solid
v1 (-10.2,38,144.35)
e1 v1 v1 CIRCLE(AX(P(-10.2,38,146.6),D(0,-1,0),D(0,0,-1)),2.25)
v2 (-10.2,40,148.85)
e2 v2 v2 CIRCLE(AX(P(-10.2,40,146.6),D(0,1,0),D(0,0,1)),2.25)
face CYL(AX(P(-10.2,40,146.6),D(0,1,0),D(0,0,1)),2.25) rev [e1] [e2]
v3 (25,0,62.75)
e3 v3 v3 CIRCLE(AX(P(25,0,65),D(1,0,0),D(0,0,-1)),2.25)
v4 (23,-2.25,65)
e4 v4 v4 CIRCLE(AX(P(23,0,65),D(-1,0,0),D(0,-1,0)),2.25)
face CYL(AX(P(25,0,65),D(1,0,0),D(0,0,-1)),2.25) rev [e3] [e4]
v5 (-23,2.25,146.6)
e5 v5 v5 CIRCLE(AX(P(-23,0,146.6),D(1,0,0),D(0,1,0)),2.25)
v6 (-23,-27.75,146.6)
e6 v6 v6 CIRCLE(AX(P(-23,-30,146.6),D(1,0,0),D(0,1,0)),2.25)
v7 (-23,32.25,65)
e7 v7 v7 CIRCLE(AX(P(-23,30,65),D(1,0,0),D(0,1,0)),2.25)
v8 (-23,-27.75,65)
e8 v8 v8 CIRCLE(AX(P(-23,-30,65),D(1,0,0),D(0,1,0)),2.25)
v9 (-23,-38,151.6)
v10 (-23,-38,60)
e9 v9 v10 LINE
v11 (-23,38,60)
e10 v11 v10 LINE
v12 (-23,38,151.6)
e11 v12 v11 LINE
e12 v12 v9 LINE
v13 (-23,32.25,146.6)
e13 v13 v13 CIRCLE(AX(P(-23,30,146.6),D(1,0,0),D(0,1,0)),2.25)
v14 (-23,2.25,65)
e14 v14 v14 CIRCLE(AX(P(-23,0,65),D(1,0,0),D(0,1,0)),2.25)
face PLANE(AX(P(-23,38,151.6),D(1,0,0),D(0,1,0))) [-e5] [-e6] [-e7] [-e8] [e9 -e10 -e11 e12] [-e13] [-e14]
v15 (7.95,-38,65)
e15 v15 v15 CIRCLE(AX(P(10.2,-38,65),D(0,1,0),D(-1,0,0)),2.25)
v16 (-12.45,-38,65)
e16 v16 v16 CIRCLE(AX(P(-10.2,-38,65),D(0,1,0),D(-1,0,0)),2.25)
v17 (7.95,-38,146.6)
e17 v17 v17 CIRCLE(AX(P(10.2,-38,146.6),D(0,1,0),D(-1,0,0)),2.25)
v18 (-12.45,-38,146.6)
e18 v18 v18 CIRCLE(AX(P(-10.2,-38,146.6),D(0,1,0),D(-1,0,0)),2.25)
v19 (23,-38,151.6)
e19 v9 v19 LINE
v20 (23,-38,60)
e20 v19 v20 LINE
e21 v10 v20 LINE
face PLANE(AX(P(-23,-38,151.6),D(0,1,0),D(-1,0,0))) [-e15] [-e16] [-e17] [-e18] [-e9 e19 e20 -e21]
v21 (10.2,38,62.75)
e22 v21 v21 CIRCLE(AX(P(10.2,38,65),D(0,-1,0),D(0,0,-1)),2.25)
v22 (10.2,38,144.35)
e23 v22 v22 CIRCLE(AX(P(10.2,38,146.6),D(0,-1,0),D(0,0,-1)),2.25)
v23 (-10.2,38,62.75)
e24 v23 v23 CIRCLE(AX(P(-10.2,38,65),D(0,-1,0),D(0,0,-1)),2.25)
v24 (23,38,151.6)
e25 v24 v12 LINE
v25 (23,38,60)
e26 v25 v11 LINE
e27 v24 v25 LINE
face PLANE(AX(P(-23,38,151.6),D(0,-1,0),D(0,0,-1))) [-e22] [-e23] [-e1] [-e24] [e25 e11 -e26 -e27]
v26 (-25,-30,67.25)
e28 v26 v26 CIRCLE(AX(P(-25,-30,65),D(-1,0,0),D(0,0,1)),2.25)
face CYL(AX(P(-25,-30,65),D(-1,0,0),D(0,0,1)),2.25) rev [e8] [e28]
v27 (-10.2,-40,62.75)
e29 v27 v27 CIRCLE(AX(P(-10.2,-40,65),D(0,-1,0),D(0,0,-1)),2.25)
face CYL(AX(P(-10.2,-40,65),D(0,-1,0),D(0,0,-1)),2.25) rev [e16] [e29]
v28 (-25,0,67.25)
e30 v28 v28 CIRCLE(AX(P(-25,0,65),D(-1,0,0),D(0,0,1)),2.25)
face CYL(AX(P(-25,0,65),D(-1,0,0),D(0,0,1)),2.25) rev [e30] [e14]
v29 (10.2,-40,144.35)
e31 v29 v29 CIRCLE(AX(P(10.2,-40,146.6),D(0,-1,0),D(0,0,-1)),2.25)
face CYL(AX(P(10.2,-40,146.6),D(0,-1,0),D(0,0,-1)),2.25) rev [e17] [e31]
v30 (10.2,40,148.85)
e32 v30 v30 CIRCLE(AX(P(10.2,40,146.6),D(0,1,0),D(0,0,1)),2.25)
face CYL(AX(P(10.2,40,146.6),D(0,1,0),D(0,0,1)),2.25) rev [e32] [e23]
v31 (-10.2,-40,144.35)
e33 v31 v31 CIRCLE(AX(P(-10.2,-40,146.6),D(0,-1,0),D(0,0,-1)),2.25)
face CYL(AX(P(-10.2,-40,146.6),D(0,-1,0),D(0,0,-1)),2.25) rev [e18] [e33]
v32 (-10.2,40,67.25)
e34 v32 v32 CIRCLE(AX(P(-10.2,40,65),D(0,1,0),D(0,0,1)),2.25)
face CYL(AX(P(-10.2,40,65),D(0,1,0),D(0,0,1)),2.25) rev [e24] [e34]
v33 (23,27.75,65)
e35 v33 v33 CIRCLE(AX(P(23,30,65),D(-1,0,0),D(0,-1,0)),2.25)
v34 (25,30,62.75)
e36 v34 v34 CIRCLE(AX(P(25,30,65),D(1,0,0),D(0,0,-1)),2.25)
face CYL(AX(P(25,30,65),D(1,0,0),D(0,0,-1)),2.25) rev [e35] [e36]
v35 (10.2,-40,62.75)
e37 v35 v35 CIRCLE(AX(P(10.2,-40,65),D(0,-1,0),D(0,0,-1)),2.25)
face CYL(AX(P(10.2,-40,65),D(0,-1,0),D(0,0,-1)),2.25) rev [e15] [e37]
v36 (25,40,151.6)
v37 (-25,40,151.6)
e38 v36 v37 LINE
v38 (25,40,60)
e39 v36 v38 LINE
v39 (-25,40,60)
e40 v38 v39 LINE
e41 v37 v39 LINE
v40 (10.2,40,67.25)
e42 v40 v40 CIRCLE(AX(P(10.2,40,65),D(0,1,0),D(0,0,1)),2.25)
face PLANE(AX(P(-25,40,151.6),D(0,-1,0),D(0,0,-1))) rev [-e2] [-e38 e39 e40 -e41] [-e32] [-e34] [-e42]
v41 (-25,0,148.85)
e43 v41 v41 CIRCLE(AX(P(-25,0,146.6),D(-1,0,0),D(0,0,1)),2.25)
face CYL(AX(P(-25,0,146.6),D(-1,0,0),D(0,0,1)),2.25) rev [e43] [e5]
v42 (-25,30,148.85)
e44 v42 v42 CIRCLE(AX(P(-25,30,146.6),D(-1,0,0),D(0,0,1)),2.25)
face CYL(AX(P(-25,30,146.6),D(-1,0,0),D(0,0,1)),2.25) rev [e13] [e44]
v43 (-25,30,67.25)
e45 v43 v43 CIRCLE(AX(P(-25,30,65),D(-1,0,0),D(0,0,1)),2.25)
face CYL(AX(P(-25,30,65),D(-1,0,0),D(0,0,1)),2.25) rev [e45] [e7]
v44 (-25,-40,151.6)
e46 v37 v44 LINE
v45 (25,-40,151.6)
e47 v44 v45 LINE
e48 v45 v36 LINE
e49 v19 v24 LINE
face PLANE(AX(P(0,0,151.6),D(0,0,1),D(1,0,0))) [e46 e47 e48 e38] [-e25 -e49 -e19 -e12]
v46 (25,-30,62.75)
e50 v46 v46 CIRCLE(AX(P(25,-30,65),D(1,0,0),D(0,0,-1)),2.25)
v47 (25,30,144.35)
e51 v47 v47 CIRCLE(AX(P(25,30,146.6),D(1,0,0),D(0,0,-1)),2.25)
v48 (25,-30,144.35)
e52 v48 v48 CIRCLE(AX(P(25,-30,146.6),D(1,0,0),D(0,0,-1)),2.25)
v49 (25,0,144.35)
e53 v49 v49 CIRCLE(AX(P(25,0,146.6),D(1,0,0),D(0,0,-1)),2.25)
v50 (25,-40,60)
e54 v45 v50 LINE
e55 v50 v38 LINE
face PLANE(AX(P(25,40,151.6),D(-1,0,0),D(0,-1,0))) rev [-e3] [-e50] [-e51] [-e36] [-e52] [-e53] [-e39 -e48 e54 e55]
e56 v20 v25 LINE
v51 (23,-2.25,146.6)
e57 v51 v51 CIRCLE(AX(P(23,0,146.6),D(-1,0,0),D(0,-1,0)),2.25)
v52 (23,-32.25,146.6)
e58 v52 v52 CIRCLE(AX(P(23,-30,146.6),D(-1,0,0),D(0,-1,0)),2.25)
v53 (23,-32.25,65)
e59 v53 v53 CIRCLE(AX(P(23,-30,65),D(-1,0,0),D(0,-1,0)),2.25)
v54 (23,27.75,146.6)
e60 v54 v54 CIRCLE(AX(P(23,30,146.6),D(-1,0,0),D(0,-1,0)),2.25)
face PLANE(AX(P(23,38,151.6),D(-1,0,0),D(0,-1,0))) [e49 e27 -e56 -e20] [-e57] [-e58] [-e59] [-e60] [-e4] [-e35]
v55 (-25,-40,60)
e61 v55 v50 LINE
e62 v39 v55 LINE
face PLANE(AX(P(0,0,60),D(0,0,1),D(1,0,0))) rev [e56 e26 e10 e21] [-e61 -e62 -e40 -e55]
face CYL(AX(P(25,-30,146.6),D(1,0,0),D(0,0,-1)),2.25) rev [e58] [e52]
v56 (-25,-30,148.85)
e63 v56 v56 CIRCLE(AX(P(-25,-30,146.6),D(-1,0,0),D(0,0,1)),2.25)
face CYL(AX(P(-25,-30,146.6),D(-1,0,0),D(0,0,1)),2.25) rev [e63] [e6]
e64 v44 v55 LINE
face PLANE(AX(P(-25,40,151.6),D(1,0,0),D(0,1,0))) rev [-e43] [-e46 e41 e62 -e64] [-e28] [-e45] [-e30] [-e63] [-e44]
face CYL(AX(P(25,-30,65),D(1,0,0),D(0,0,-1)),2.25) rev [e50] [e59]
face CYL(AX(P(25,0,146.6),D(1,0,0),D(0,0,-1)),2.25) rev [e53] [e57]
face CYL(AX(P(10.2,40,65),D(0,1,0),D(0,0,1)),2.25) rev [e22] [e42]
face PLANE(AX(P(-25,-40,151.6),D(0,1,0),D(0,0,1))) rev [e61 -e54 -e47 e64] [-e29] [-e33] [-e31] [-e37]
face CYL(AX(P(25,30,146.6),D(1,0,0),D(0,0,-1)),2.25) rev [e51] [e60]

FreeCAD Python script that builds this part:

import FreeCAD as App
import Part
import Sketcher

V = App.Vector


def add_polygon(sketch, points):
    """Adds a closed chain of lines whose ends are joined by coincident constraints."""
    first, n = sketch.GeometryCount, len(points)
    for a, b in zip(points, points[1:] + points[:1]):
        sketch.addGeometry(Part.LineSegment(App.Vector(*a, 0), App.Vector(*b, 0)), False)
    for i in range(n):
        sketch.addConstraint(Sketcher.Constraint("Coincident", first + i, 2, first + (i + 1) % n, 1))

doc = App.newDocument("Part")
body = doc.addObject("PartDesign::Body", "Body")

sketch1 = body.newObject("Sketcher::SketchObject", "Sketch")
sketch1.AttachmentSupport = (doc.getObject("XY_Plane"), [""])
sketch1.MapMode = "FlatFace"
sketch1.AttachmentOffset = App.Placement(V(0, 0, 60), App.Rotation())
add_polygon(sketch1, [(-25, 40), (-25, -40), (25, -40), (25, 40)])
add_polygon(sketch1, [(23, -38), (-23, -38), (-23, 38), (23, 38)])
sketch1.addConstraint(Sketcher.Constraint("Vertical", 0))
sketch1.addConstraint(Sketcher.Constraint("Horizontal", 1))
sketch1.addConstraint(Sketcher.Constraint("Vertical", 2))
sketch1.addConstraint(Sketcher.Constraint("Horizontal", 3))
sketch1.addConstraint(Sketcher.Constraint("Horizontal", 4))
sketch1.addConstraint(Sketcher.Constraint("Vertical", 5))
sketch1.addConstraint(Sketcher.Constraint("Horizontal", 6))
sketch1.addConstraint(Sketcher.Constraint("Vertical", 7))
sketch1.addConstraint(Sketcher.Constraint("Symmetric", 0, 2, 2, 2, -1, 1))
sketch1.addConstraint(Sketcher.Constraint("Symmetric", 4, 2, 6, 2, -1, 1))
sketch1.addConstraint(Sketcher.Constraint("DistanceX", 1, 1, 1, 2, 50.0))
sketch1.addConstraint(Sketcher.Constraint("DistanceX", 4, 2, 4, 1, 46.0))
sketch1.addConstraint(Sketcher.Constraint("DistanceY", 0, 2, 0, 1, 80.0))
sketch1.addConstraint(Sketcher.Constraint("DistanceY", 5, 1, 5, 2, 76.0))
pad1 = body.newObject("PartDesign::Pad", "Pad")
pad1.Profile = sketch1
pad1.Length = 91.6

sketch2 = body.newObject("Sketcher::SketchObject", "Sketch001")
sketch2.AttachmentSupport = (doc.getObject("YZ_Plane"), [""])
sketch2.MapMode = "FlatFace"
sketch2.AttachmentOffset = App.Placement(V(0, 0, 25), App.Rotation())
sketch2.addGeometry(Part.Circle(V(30, 65, 0), V(0, 0, 1), 2.25), False)
sketch2.addGeometry(Part.Circle(V(0, 65, 0), V(0, 0, 1), 2.25), False)
sketch2.addGeometry(Part.Circle(V(-30, 65, 0), V(0, 0, 1), 2.25), False)
sketch2.addGeometry(Part.Circle(V(-30, 146.6, 0), V(0, 0, 1), 2.25), False)
sketch2.addGeometry(Part.Circle(V(0, 146.6, 0), V(0, 0, 1), 2.25), False)
sketch2.addGeometry(Part.Circle(V(30, 146.6, 0), V(0, 0, 1), 2.25), False)
sketch2.addConstraint(Sketcher.Constraint("Equal", 0, 1))
sketch2.addConstraint(Sketcher.Constraint("Equal", 1, 2))
sketch2.addConstraint(Sketcher.Constraint("Equal", 2, 3))
sketch2.addConstraint(Sketcher.Constraint("Equal", 3, 4))
sketch2.addConstraint(Sketcher.Constraint("Equal", 4, 5))
sketch2.addConstraint(Sketcher.Constraint("Symmetric", 0, 3, 2, 3, -2))
sketch2.addConstraint(Sketcher.Constraint("Symmetric", 3, 3, 5, 3, -2))
sketch2.addConstraint(Sketcher.Constraint("PointOnObject", 1, 3, -2))
sketch2.addConstraint(Sketcher.Constraint("PointOnObject", 4, 3, -2))
sketch2.addConstraint(Sketcher.Constraint("Horizontal", 0, 3, 1, 3))
sketch2.addConstraint(Sketcher.Constraint("Horizontal", 3, 3, 4, 3))
sketch2.addConstraint(Sketcher.Constraint("Vertical", 2, 3, 3, 3))
sketch2.addConstraint(Sketcher.Constraint("Diameter", 0, 4.5))
sketch2.addConstraint(Sketcher.Constraint("DistanceX", -1, 1, 0, 3, 30.0))
sketch2.addConstraint(Sketcher.Constraint("DistanceY", -1, 1, 0, 3, 65.0))
sketch2.addConstraint(Sketcher.Constraint("DistanceY", -1, 1, 3, 3, 146.6))
doc.recompute()
hole = body.newObject("PartDesign::Hole", "Hole")
hole.Profile = sketch2
hole.ThreadType = "None"
hole.Diameter = 4.5
hole.DepthType = "ThroughAll"

sketch3 = body.newObject("Sketcher::SketchObject", "Sketch002")
sketch3.AttachmentSupport = (doc.getObject("XZ_Plane"), [""])
sketch3.MapMode = "FlatFace"
sketch3.AttachmentOffset = App.Placement(V(0, 0, 40), App.Rotation())
sketch3.addGeometry(Part.Circle(V(10.2, 65, 0), V(0, 0, 1), 2.25), False)
sketch3.addGeometry(Part.Circle(V(-10.2, 65, 0), V(0, 0, 1), 2.25), False)
sketch3.addGeometry(Part.Circle(V(-10.2, 146.6, 0), V(0, 0, 1), 2.25), False)
sketch3.addGeometry(Part.Circle(V(10.2, 146.6, 0), V(0, 0, 1), 2.25), False)
sketch3.addConstraint(Sketcher.Constraint("Equal", 0, 1))
sketch3.addConstraint(Sketcher.Constraint("Equal", 1, 2))
sketch3.addConstraint(Sketcher.Constraint("Equal", 2, 3))
sketch3.addConstraint(Sketcher.Constraint("Symmetric", 0, 3, 1, 3, -2))
sketch3.addConstraint(Sketcher.Constraint("Symmetric", 2, 3, 3, 3, -2))
sketch3.addConstraint(Sketcher.Constraint("Vertical", 1, 3, 2, 3))
sketch3.addConstraint(Sketcher.Constraint("Diameter", 0, 4.5))
sketch3.addConstraint(Sketcher.Constraint("DistanceY", -1, 1, 0, 3, 65.0))
sketch3.addConstraint(Sketcher.Constraint("DistanceX", -1, 1, 0, 3, 10.2))
sketch3.addConstraint(Sketcher.Constraint("DistanceY", -1, 1, 2, 3, 146.6))
doc.recompute()
hole2 = body.newObject("PartDesign::Hole", "Hole001")
hole2.Profile = sketch3
hole2.ThreadType = "None"
hole2.Diameter = 4.5
hole2.DepthType = "ThroughAll"

sketch4 = body.newObject("Sketcher::SketchObject", "Sketch003")
sketch4.AttachmentSupport = (doc.getObject("YZ_Plane"), [""])
sketch4.MapMode = "FlatFace"
sketch4.AttachmentOffset = App.Placement(V(0, 0, -25), App.Rotation())
sketch4.addGeometry(Part.Circle(V(-30, 65, 0), V(0, 0, 1), 2.25), False)
sketch4.addGeometry(Part.Circle(V(30, 65, 0), V(0, 0, 1), 2.25), False)
sketch4.addGeometry(Part.Circle(V(0, 65, 0), V(0, 0, 1), 2.25), False)
sketch4.addGeometry(Part.Circle(V(30, 146.6, 0), V(0, 0, 1), 2.25), False)
sketch4.addGeometry(Part.Circle(V(0, 146.6, 0), V(0, 0, 1), 2.25), False)
sketch4.addGeometry(Part.Circle(V(-30, 146.6, 0), V(0, 0, 1), 2.25), False)
sketch4.addConstraint(Sketcher.Constraint("Equal", 0, 1))
sketch4.addConstraint(Sketcher.Constraint("Equal", 1, 2))
sketch4.addConstraint(Sketcher.Constraint("Equal", 2, 3))
sketch4.addConstraint(Sketcher.Constraint("Equal", 3, 4))
sketch4.addConstraint(Sketcher.Constraint("Equal", 4, 5))
sketch4.addConstraint(Sketcher.Constraint("Symmetric", 0, 3, 1, 3, -2))
sketch4.addConstraint(Sketcher.Constraint("Symmetric", 3, 3, 5, 3, -2))
sketch4.addConstraint(Sketcher.Constraint("PointOnObject", 2, 3, -2))
sketch4.addConstraint(Sketcher.Constraint("PointOnObject", 4, 3, -2))
sketch4.addConstraint(Sketcher.Constraint("Horizontal", 1, 3, 2, 3))
sketch4.addConstraint(Sketcher.Constraint("Horizontal", 3, 3, 4, 3))
sketch4.addConstraint(Sketcher.Constraint("Vertical", 1, 3, 3, 3))
sketch4.addConstraint(Sketcher.Constraint("Diameter", 0, 4.5))
sketch4.addConstraint(Sketcher.Constraint("DistanceX", 0, 3, -1, 1, 30.0))
sketch4.addConstraint(Sketcher.Constraint("DistanceY", -1, 1, 0, 3, 65.0))
sketch4.addConstraint(Sketcher.Constraint("DistanceY", -1, 1, 3, 3, 146.6))
doc.recompute()
hole3 = body.newObject("PartDesign::Hole", "Hole002")
hole3.Profile = sketch4
hole3.ThreadType = "None"
hole3.Diameter = 4.5
hole3.DepthType = "ThroughAll"
hole3.Reversed = True

sketch5 = body.newObject("Sketcher::SketchObject", "Sketch004")
sketch5.AttachmentSupport = (doc.getObject("XZ_Plane"), [""])
sketch5.MapMode = "FlatFace"
sketch5.AttachmentOffset = App.Placement(V(0, 0, -40), App.Rotation())
sketch5.addGeometry(Part.Circle(V(10.2, 65, 0), V(0, 0, 1), 2.25), False)
sketch5.addGeometry(Part.Circle(V(-10.2, 65, 0), V(0, 0, 1), 2.25), False)
sketch5.addGeometry(Part.Circle(V(10.2, 146.6, 0), V(0, 0, 1), 2.25), False)
sketch5.addGeometry(Part.Circle(V(-10.2, 146.6, 0), V(0, 0, 1), 2.25), False)
sketch5.addConstraint(Sketcher.Constraint("Equal", 0, 1))
sketch5.addConstraint(Sketcher.Constraint("Equal", 1, 2))
sketch5.addConstraint(Sketcher.Constraint("Equal", 2, 3))
sketch5.addConstraint(Sketcher.Constraint("Symmetric", 0, 3, 1, 3, -2))
sketch5.addConstraint(Sketcher.Constraint("Symmetric", 2, 3, 3, 3, -2))
sketch5.addConstraint(Sketcher.Constraint("Vertical", 0, 3, 2, 3))
sketch5.addConstraint(Sketcher.Constraint("Diameter", 0, 4.5))
sketch5.addConstraint(Sketcher.Constraint("DistanceY", -1, 1, 0, 3, 65.0))
sketch5.addConstraint(Sketcher.Constraint("DistanceX", -1, 1, 0, 3, 10.2))
sketch5.addConstraint(Sketcher.Constraint("DistanceY", -1, 1, 2, 3, 146.6))
doc.recompute()
hole4 = body.newObject("PartDesign::Hole", "Hole003")
hole4.Profile = sketch5
hole4.ThreadType = "None"
hole4.Diameter = 4.5
hole4.DepthType = "ThroughAll"
hole4.Reversed = True

doc.recompute()
